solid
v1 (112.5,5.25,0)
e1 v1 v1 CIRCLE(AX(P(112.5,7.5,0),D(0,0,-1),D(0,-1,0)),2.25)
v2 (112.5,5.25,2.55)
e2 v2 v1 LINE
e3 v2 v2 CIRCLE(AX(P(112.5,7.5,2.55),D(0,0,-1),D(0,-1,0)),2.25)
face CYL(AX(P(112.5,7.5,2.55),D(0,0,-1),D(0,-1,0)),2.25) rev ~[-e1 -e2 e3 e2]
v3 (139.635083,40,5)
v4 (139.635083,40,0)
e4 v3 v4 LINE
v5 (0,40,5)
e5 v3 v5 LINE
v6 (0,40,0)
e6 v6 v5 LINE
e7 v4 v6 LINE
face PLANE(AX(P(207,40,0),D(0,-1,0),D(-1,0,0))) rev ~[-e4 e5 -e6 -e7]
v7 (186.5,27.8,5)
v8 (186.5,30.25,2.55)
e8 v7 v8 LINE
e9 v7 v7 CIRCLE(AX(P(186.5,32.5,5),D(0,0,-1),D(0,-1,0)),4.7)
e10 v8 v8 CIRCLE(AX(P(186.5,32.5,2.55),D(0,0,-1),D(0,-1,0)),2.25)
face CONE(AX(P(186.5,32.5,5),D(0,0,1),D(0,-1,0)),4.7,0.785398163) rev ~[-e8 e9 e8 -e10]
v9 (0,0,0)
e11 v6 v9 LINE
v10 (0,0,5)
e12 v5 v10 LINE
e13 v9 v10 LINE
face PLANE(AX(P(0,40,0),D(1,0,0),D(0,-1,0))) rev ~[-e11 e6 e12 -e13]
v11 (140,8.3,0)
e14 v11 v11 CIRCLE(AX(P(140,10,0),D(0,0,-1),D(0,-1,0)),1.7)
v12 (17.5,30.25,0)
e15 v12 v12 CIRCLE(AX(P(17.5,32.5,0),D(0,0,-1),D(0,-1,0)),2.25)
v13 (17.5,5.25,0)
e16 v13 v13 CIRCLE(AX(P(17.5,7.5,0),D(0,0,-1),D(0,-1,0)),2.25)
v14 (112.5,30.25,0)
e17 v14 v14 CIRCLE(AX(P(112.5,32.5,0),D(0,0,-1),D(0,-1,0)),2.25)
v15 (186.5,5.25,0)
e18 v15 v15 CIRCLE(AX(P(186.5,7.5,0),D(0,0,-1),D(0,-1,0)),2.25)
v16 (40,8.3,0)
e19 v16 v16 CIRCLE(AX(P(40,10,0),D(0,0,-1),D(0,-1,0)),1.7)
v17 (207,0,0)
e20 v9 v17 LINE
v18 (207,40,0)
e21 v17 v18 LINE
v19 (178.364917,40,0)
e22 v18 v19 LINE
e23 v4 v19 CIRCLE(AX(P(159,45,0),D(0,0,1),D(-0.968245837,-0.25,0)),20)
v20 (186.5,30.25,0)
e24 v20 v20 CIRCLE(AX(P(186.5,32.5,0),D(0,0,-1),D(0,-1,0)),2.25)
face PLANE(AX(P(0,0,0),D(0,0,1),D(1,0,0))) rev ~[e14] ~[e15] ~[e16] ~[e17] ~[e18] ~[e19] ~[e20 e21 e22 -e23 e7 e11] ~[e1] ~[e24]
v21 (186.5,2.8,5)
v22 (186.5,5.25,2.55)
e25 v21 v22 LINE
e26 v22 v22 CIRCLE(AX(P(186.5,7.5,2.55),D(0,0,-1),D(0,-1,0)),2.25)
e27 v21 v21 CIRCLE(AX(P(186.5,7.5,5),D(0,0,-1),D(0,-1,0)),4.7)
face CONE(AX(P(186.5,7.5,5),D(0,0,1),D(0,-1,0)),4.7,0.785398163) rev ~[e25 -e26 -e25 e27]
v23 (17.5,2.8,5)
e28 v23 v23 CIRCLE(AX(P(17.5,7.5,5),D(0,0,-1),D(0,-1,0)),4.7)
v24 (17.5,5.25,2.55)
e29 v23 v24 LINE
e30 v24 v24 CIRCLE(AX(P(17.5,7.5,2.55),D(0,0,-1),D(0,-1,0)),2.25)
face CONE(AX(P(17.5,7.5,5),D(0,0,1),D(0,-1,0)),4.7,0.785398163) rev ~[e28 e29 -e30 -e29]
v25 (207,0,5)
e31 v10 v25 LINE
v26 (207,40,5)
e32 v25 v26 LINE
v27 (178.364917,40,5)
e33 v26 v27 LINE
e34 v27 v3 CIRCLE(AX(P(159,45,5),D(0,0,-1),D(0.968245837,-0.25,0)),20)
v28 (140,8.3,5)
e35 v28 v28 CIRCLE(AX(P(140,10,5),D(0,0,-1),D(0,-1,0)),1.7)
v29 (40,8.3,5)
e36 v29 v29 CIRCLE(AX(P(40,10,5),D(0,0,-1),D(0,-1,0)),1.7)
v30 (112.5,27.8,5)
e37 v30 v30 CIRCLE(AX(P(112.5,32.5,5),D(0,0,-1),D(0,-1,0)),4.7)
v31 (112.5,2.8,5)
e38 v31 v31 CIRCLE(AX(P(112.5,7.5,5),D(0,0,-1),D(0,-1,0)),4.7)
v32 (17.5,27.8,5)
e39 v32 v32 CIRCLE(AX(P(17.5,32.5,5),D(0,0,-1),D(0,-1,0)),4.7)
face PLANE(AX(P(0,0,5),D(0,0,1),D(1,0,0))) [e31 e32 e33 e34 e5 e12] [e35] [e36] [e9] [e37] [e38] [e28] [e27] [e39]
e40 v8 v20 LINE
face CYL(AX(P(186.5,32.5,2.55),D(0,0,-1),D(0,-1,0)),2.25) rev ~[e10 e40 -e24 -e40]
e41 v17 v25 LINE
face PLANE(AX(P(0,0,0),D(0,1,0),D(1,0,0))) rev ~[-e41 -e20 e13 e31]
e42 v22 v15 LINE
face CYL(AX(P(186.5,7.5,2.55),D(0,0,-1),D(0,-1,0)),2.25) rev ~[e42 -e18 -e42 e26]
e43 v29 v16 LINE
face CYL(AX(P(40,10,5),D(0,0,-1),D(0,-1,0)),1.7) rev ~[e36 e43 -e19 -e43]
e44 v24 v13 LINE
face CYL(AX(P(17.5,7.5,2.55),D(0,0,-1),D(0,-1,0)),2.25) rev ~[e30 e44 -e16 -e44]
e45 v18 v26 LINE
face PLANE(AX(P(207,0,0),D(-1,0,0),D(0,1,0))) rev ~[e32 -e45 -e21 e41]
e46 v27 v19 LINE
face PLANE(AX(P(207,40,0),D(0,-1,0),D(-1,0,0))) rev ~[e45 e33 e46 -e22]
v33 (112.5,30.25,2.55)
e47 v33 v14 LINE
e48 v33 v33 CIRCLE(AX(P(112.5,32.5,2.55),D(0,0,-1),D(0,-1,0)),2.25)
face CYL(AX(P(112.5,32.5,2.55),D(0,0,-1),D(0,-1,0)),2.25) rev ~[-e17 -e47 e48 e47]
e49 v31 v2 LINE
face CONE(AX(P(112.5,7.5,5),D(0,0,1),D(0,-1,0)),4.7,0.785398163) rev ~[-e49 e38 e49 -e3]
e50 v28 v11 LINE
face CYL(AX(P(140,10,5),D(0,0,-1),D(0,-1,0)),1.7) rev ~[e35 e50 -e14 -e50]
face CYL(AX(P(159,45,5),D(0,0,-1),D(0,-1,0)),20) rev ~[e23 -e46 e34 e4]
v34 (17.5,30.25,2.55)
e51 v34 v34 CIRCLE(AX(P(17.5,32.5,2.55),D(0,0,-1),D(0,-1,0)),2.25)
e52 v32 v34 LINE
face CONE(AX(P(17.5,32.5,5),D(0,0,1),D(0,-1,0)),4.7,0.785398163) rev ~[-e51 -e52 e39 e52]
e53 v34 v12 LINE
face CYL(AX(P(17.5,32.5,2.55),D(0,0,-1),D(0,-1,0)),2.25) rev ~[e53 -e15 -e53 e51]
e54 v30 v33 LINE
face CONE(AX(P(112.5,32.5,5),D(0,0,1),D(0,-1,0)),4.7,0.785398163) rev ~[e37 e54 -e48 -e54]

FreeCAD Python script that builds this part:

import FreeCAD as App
import Part
import Sketcher
from FreeCAD import Vector
Q = App.Units.Quantity

doc = App.newDocument("Part")
body = doc.addObject("PartDesign::Body", "Body")

# Sketch on XY plane
sketch1 = body.newObject("Sketcher::SketchObject", "Sketch")
sketch1.AttachmentSupport = (doc.getObject("XY_Plane"), [""])
sketch1.MapMode = "FlatFace"
sketch1.addGeometry([
    Part.LineSegment(Vector(0, 40, 0), Vector(0, 0, 0)),
    Part.LineSegment(Vector(0, 0, 0), Vector(207, 0, 0)),
    Part.LineSegment(Vector(207, 0, 0), Vector(207, 40, 0)),
    Part.LineSegment(Vector(207, 40, 0), Vector(0, 40, 0)),
], False)
sketch1.addConstraint([
    Sketcher.Constraint("Coincident", 0, 2, 1, 1),
    Sketcher.Constraint("Coincident", 1, 2, 2, 1),
    Sketcher.Constraint("Coincident", 2, 2, 3, 1),
    Sketcher.Constraint("Coincident", 3, 2, 0, 1),
    Sketcher.Constraint("Vertical", 0),
    Sketcher.Constraint("Horizontal", 1),
    Sketcher.Constraint("Vertical", 2),
    Sketcher.Constraint("Horizontal", 3),
    Sketcher.Constraint("Coincident", 0, 2, -1, 1),
    Sketcher.Constraint("DistanceX", 1, 1, 1, 2, Q("207 mm")),
    Sketcher.Constraint("DistanceY", 0, 2, 0, 1, Q("40 mm")),
])
pad1 = body.newObject("PartDesign::Pad", "Pad")
pad1.Profile = sketch1
pad1.Length = 5

# Sketch on XY plane
sketch2 = body.newObject("Sketcher::SketchObject", "Sketch001")
sketch2.AttachmentSupport = (doc.getObject("XY_Plane"), [""])
sketch2.MapMode = "FlatFace"
sketch2.AttachmentOffset = App.Placement(Vector(0, 0, 5), App.Rotation())
sketch2.addGeometry([
    Part.Circle(Vector(17.5, 32.5, 0), Vector(0, 0, 1), 2.2),  # 0
    Part.Circle(Vector(17.5, 7.5, 0), Vector(0, 0, 1), 2.2),  # 1
    Part.Circle(Vector(112.5, 32.5, 0), Vector(0, 0, 1), 2.2),  # 2
    Part.Circle(Vector(112.5, 7.5, 0), Vector(0, 0, 1), 2.2),  # 3
    Part.Circle(Vector(186.5, 32.5, 0), Vector(0, 0, 1), 2.2),  # 4
    Part.Circle(Vector(186.5, 7.5, 0), Vector(0, 0, 1), 2.2),  # 5
], False)
sketch2.addConstraint([
    Sketcher.Constraint("Equal", 0, 1),
    Sketcher.Constraint("Equal", 1, 2),
    Sketcher.Constraint("Equal", 2, 3),
    Sketcher.Constraint("Equal", 3, 4),
    Sketcher.Constraint("Equal", 4, 5),
    Sketcher.Constraint("Horizontal", 0, 3, 2, 3),
    Sketcher.Constraint("Horizontal", 1, 3, 3, 3),
    Sketcher.Constraint("Horizontal", 2, 3, 4, 3),
    Sketcher.Constraint("Horizontal", 3, 3, 5, 3),
    Sketcher.Constraint("Vertical", 0, 3, 1, 3),
    Sketcher.Constraint("Vertical", 2, 3, 3, 3),
    Sketcher.Constraint("Vertical", 4, 3, 5, 3),
    Sketcher.Constraint("Diameter", 0, Q("4.5 mm")),
    Sketcher.Constraint("DistanceY", 1, 3, 0, 3, Q("25 mm")),
    Sketcher.Constraint("DistanceX", 0, 3, 2, 3, Q("95 mm")),
    Sketcher.Constraint("DistanceX", 2, 3, 4, 3, Q("74 mm")),
    Sketcher.Constraint("DistanceX", -1, 1, 0, 3, Q("17.5 mm")),
    Sketcher.Constraint("DistanceY", -1, 1, 0, 3, Q("32.5 mm")),
])
doc.recompute()
hole = body.newObject("PartDesign::Hole", "Hole")
hole.Profile = sketch2
hole.ThreadType = "None"
hole.Diameter = 4.5
hole.DepthType = "ThroughAll"
hole.HoleCutType = "Countersink"
hole.HoleCutDiameter = 9.4
hole.HoleCutCountersinkAngle = 90

# Sketch on XY plane
sketch3 = body.newObject("Sketcher::SketchObject", "Sketch002")
sketch3.AttachmentSupport = (doc.getObject("XY_Plane"), [""])
sketch3.MapMode = "FlatFace"
sketch3.AttachmentOffset = App.Placement(Vector(0, 0, 5), App.Rotation())
sketch3.addGeometry(Part.Circle(Vector(159, 45, 0), Vector(0, 0, 1), 20), False)
sketch3.addConstraint([
    Sketcher.Constraint("Diameter", 0, Q("40 mm")),
    Sketcher.Constraint("DistanceX", -1, 1, 0, 3, Q("159 mm")),
    Sketcher.Constraint("DistanceY", -1, 1, 0, 3, Q("45 mm")),
])
doc.recompute()
hole2 = body.newObject("PartDesign::Hole", "Hole001")
hole2.Profile = sketch3
hole2.ThreadType = "None"
hole2.Diameter = 40
hole2.DepthType = "ThroughAll"

# Sketch on XY plane
sketch4 = body.newObject("Sketcher::SketchObject", "Sketch003")
sketch4.AttachmentSupport = (doc.getObject("XY_Plane"), [""])
sketch4.MapMode = "FlatFace"
sketch4.AttachmentOffset = App.Placement(Vector(0, 0, 5), App.Rotation())
sketch4.addGeometry([
    Part.Circle(Vector(40, 10, 0), Vector(0, 0, 1), 1.7),
    Part.Circle(Vector(140, 10, 0), Vector(0, 0, 1), 1.7),
], False)
sketch4.addConstraint([
    Sketcher.Constraint("Equal", 0, 1),
    Sketcher.Constraint("Horizontal", 0, 3, 1, 3),
    Sketcher.Constraint("Diameter", 0, Q("3.4 mm")),
    Sketcher.Constraint("DistanceX", -1, 1, 0, 3, Q("40 mm")),
    Sketcher.Constraint("DistanceY", -1, 1, 0, 3, Q("10 mm")),
    Sketcher.Constraint("DistanceX", -1, 1, 1, 3, Q("140 mm")),
])
doc.recompute()
hole3 = body.newObject("PartDesign::Hole", "Hole002")
hole3.Profile = sketch4
hole3.ThreadType = "None"
hole3.Diameter = 3.4
hole3.DepthType = "ThroughAll"

doc.recompute()
